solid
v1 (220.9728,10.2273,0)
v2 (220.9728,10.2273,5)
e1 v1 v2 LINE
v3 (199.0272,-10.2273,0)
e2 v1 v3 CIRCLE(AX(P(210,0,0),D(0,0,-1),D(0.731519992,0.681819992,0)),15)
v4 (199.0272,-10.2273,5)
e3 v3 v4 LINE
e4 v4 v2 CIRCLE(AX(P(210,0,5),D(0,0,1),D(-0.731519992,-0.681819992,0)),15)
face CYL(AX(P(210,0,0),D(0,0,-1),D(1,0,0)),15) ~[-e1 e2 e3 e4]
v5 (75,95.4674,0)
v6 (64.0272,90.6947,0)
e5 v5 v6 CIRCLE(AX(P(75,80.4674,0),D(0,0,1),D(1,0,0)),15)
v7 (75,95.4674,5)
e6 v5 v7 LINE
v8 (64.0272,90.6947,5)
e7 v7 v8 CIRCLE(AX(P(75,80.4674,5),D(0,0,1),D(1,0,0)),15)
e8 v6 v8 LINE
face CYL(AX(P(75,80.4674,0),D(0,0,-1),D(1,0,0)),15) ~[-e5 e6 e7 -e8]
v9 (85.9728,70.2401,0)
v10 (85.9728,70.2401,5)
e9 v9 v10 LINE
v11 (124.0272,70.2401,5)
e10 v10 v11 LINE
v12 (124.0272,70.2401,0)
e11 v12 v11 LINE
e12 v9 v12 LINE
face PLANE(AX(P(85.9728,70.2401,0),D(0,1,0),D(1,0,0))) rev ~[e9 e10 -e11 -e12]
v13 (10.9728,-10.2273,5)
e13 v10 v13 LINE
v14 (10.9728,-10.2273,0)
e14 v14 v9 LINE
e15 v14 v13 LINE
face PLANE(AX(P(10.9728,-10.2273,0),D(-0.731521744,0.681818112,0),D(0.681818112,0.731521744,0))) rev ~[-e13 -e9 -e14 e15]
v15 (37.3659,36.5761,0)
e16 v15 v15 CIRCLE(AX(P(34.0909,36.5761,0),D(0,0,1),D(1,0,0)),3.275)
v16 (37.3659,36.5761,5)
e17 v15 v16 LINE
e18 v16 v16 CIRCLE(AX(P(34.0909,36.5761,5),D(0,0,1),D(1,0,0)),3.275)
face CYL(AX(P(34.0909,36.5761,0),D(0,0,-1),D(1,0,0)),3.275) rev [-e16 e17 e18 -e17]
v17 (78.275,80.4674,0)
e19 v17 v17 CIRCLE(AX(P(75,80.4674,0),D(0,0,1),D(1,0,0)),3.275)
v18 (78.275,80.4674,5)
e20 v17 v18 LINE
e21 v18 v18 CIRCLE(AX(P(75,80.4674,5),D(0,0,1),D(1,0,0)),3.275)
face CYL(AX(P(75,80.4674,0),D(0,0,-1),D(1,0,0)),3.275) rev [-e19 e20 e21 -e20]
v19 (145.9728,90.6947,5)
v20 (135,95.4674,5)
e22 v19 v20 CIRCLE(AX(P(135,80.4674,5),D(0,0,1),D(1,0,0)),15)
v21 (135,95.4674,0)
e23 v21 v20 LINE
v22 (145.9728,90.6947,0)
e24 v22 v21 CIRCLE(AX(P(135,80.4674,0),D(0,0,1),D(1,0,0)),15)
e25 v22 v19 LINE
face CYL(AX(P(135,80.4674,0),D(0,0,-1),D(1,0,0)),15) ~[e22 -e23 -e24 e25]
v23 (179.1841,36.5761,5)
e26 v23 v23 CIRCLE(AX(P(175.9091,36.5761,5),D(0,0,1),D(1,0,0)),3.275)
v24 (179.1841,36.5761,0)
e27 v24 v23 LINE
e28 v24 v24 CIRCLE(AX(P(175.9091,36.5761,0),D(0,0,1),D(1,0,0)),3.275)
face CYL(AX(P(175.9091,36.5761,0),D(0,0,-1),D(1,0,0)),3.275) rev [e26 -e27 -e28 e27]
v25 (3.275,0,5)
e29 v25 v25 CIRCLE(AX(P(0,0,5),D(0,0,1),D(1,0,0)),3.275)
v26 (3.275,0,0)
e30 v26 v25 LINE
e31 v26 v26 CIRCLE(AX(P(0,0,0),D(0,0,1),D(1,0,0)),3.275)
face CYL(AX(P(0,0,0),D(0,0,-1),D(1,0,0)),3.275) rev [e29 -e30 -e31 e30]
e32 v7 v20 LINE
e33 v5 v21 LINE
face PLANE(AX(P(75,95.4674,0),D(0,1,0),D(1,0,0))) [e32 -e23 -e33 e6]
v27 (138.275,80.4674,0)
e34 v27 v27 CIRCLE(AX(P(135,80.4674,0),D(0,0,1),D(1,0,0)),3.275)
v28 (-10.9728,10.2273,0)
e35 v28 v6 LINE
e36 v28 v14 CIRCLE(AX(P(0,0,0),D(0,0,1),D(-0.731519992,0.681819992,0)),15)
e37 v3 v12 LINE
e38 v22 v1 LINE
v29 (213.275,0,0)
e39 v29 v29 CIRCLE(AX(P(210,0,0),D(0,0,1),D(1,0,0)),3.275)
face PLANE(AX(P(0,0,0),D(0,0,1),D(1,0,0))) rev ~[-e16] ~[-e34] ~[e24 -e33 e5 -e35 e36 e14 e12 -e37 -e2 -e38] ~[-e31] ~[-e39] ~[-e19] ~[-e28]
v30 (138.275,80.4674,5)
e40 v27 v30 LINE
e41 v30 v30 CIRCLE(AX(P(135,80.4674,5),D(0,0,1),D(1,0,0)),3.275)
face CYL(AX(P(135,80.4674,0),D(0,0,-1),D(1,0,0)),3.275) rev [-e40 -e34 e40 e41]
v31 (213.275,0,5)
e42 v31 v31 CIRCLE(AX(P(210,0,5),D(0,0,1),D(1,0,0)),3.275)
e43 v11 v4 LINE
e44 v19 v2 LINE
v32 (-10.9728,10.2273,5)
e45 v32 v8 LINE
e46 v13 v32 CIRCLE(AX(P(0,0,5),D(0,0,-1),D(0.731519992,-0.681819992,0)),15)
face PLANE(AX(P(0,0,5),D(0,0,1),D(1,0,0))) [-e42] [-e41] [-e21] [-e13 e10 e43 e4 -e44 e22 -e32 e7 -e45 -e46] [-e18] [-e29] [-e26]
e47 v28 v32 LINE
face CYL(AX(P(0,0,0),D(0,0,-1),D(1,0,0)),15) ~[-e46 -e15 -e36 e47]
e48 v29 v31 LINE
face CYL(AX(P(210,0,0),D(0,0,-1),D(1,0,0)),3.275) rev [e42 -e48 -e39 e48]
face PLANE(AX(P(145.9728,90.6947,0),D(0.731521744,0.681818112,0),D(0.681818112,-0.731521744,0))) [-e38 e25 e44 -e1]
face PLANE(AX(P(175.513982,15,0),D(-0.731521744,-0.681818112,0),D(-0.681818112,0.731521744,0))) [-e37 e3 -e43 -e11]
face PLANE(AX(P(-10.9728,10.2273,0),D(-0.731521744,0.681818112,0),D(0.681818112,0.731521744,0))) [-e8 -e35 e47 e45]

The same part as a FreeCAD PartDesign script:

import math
import FreeCAD as App
import Part
import Sketcher
from FreeCAD import Vector

doc = App.newDocument("Part")
params = doc.addObject("Spreadsheet::Sheet", "Params")
for row, (alias, value) in enumerate([
    ("sketch1_radius", "15 mm"),
    ("sketch1_diameter", "6.55 mm"),
    ("sketch1_width", "60 mm"),
    ("sketch1_length", "110 mm"),
    ("pad1_length", "5 mm"),
], start=1):
    params.set(f"A{row}", alias)
    params.set(f"B{row}", "=" + value)
    params.setAlias(f"B{row}", alias)

body = doc.addObject("PartDesign::Body", "Body")

# Sketch on XY plane
sketch1 = body.newObject("Sketcher::SketchObject", "Sketch")
sketch1.AttachmentSupport = (doc.getObject("XY_Plane"), [""])
sketch1.MapMode = "FlatFace"
sketch1.addGeometry([
    Part.LineSegment(Vector(11, -10.2, 0), Vector(86, 70.2, 0)),  # 0
    Part.LineSegment(Vector(86, 70.2, 0), Vector(124, 70.2, 0)),  # 1
    Part.LineSegment(Vector(124, 70.2, 0), Vector(199, -10.2, 0)),  # 2
    Part.ArcOfCircle(Part.Circle(Vector(210, 0, 0), Vector(0, 0, 1), 15), math.radians(-137), math.radians(43)),  # 3
    Part.LineSegment(Vector(221, 10.2, 0), Vector(146, 90.7, 0)),  # 4
    Part.ArcOfCircle(Part.Circle(Vector(135, 80.5, 0), Vector(0, 0, 1), 15), math.radians(43), math.radians(90)),  # 5
    Part.LineSegment(Vector(135, 95.5, 0), Vector(75, 95.5, 0)),  # 6
    Part.ArcOfCircle(Part.Circle(Vector(75, 80.5, 0), Vector(0, 0, 1), 15), math.radians(90), math.radians(137)),  # 7
    Part.LineSegment(Vector(64, 90.7, 0), Vector(-11, 10.2, 0)),  # 8
    Part.ArcOfCircle(Part.Circle(Vector(0, 0, 0), Vector(0, 0, 1), 15), math.radians(137), math.radians(317)),  # 9
    Part.Circle(Vector(0, 0, 0), Vector(0, 0, 1), 3.3),  # 10
    Part.Circle(Vector(34.1, 36.6, 0), Vector(0, 0, 1), 3.3),  # 11
    Part.Circle(Vector(75, 80.5, 0), Vector(0, 0, 1), 3.3),  # 12
    Part.Circle(Vector(135, 80.5, 0), Vector(0, 0, 1), 3.3),  # 13
    Part.Circle(Vector(175.9, 36.6, 0), Vector(0, 0, 1), 3.3),  # 14
    Part.Circle(Vector(210, 0, 0), Vector(0, 0, 1), 3.3),  # 15
], False)
sketch1.addConstraint([
    Sketcher.Constraint("Coincident", 0, 2, 1, 1),
    Sketcher.Constraint("Coincident", 1, 2, 2, 1),
    Sketcher.Constraint("Tangent", 2, 2, 3, 1),
    Sketcher.Constraint("Tangent", 3, 2, 4, 1),
    Sketcher.Constraint("Tangent", 4, 2, 5, 1),
    Sketcher.Constraint("Tangent", 5, 2, 6, 1),
    Sketcher.Constraint("Tangent", 6, 2, 7, 1),
    Sketcher.Constraint("Tangent", 7, 2, 8, 1),
    Sketcher.Constraint("Tangent", 8, 2, 9, 1),
    Sketcher.Constraint("Tangent", 9, 2, 0, 1),
    Sketcher.Constraint("Horizontal", 1),
    Sketcher.Constraint("Horizontal", 6),
    Sketcher.Constraint("Coincident", 9, 3, -1, 1),
    Sketcher.Constraint("Coincident", 10, 3, -1, 1),
    Sketcher.Constraint("Coincident", 12, 3, 7, 3),
    Sketcher.Constraint("Coincident", 13, 3, 5, 3),
    Sketcher.Constraint("Coincident", 15, 3, 3, 3),
    Sketcher.Constraint("Equal", 3, 5),
    Sketcher.Constraint("Equal", 5, 7),
    Sketcher.Constraint("Equal", 7, 9),
    Sketcher.Constraint("Equal", 10, 11),
    Sketcher.Constraint("Equal", 11, 12),
    Sketcher.Constraint("Equal", 12, 13),
    Sketcher.Constraint("Equal", 13, 14),
    Sketcher.Constraint("Equal", 14, 15),
    Sketcher.Constraint("PointOnObject", 3, 3, -1),
    Sketcher.Constraint("Parallel", 2, 4),
    Sketcher.Constraint("Parallel", 0, 8),
    Sketcher.Constraint("Horizontal", 11, 3, 14, 3),
    Sketcher.Constraint("Horizontal", 4, 2, 7, 2),
    Sketcher.Constraint("Equal", 2, 4),
    Sketcher.Constraint("Radius", 3, 15.0),
    Sketcher.Constraint("Diameter", 10, 6.55),
    Sketcher.Constraint("DistanceX", 6, 2, 6, 1, 60.0),
    Sketcher.Constraint("DistanceX", -1, 1, 3, 3, 210.0),
    Sketcher.Constraint("Distance", 0, 110.0),
    Sketcher.Constraint("DistanceX", -1, 1, 11, 3, 34.091),
    Sketcher.Constraint("DistanceY", -1, 1, 11, 3, 36.576),
    Sketcher.Constraint("DistanceX", -1, 1, 14, 3, 175.909),
])
sketch1.setExpression("Constraints[31]", "Params.sketch1_radius")
sketch1.setExpression("Constraints[32]", "Params.sketch1_diameter")
sketch1.setExpression("Constraints[33]", "Params.sketch1_width")
sketch1.setExpression("Constraints[35]", "Params.sketch1_length")
pad1 = body.newObject("PartDesign::Pad", "Pad")
pad1.Profile = sketch1
pad1.setExpression("Length", "Params.pad1_length")

doc.recompute()
